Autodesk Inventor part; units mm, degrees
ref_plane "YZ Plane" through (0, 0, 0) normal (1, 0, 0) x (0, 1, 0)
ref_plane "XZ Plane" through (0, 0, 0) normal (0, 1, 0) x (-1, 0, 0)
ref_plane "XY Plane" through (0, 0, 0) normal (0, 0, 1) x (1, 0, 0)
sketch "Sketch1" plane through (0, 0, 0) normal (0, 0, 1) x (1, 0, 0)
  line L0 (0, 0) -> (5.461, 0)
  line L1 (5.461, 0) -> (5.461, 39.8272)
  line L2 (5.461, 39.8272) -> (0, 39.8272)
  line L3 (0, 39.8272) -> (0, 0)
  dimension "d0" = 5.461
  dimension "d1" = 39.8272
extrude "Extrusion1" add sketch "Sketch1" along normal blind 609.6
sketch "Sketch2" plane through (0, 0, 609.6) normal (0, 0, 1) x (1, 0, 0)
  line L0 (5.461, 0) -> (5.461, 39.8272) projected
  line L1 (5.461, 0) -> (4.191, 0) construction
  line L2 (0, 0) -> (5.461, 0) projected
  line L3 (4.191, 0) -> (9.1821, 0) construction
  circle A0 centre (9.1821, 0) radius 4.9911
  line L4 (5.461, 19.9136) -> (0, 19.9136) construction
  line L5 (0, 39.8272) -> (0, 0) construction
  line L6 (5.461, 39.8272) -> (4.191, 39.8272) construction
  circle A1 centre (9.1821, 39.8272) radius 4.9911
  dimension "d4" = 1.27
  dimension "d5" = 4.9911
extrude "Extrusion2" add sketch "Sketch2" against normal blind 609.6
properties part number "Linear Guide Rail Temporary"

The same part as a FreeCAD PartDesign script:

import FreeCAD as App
import Part
import Sketcher

V = App.Vector
Q = App.Units.Quantity

doc = App.newDocument("Part")
body = doc.addObject("PartDesign::Body", "Body")

sketch1 = body.newObject("Sketcher::SketchObject", "Sketch")
sketch1.AttachmentSupport = (doc.getObject("XY_Plane"), [""])
sketch1.MapMode = "FlatFace"
sketch1.addGeometry(Part.LineSegment(V(0, 39.8272, 0), V(0, 0, 0)), False)
sketch1.addGeometry(Part.LineSegment(V(0, 0, 0), V(5.461, 0, 0)), False)
sketch1.addGeometry(Part.LineSegment(V(5.461, 0, 0), V(5.461, 39.8272, 0)), False)
sketch1.addGeometry(Part.LineSegment(V(5.461, 39.8272, 0), V(0, 39.8272, 0)), False)
sketch1.addConstraint(Sketcher.Constraint("Coincident", 0, 2, 1, 1))
sketch1.addConstraint(Sketcher.Constraint("Coincident", 1, 2, 2, 1))
sketch1.addConstraint(Sketcher.Constraint("Coincident", 2, 2, 3, 1))
sketch1.addConstraint(Sketcher.Constraint("Coincident", 3, 2, 0, 1))
sketch1.addConstraint(Sketcher.Constraint("Vertical", 0))
sketch1.addConstraint(Sketcher.Constraint("Horizontal", 1))
sketch1.addConstraint(Sketcher.Constraint("Vertical", 2))
sketch1.addConstraint(Sketcher.Constraint("Horizontal", 3))
sketch1.addConstraint(Sketcher.Constraint("Coincident", 0, 2, -1, 1))
sketch1.addConstraint(Sketcher.Constraint("DistanceX", 1, 1, 1, 2, Q("0.215 in")))
sketch1.addConstraint(Sketcher.Constraint("DistanceY", 0, 2, 0, 1, Q("1.568 in")))
pad1 = body.newObject("PartDesign::Pad", "Pad")
pad1.Profile = sketch1
pad1.Length = Q("24 in")

sketch2 = body.newObject("Sketcher::SketchObject", "Sketch001")
sketch2.AttachmentSupport = (doc.getObject("XY_Plane"), [""])
sketch2.MapMode = "FlatFace"
sketch2.AttachmentOffset = App.Placement(V(0, 0, 24 * 25.4), App.Rotation())
sketch2.addGeometry(Part.Circle(V(9.1821, 0, 0), V(0, 0, 1), 4.9911), False)
sketch2.addGeometry(Part.Circle(V(9.1821, 39.8272, 0), V(0, 0, 1), 4.9911), False)
sketch2.addConstraint(Sketcher.Constraint("Equal", 0, 1))
sketch2.addConstraint(Sketcher.Constraint("PointOnObject", 0, 3, -1))
sketch2.addConstraint(Sketcher.Constraint("Vertical", 0, 3, 1, 3))
sketch2.addConstraint(Sketcher.Constraint("Diameter", 0, Q("0.393 in")))
sketch2.addConstraint(Sketcher.Constraint("DistanceY", -1, 1, 1, 3, Q("1.568 in")))
sketch2.addConstraint(Sketcher.Constraint("DistanceX", -1, 1, 0, 3, Q("0.3615 in")))
pad2 = body.newObject("PartDesign::Pad", "Pad001")
pad2.Profile = sketch2
pad2.Length = Q("24 in")
pad2.Reversed = True

doc.recompute()
